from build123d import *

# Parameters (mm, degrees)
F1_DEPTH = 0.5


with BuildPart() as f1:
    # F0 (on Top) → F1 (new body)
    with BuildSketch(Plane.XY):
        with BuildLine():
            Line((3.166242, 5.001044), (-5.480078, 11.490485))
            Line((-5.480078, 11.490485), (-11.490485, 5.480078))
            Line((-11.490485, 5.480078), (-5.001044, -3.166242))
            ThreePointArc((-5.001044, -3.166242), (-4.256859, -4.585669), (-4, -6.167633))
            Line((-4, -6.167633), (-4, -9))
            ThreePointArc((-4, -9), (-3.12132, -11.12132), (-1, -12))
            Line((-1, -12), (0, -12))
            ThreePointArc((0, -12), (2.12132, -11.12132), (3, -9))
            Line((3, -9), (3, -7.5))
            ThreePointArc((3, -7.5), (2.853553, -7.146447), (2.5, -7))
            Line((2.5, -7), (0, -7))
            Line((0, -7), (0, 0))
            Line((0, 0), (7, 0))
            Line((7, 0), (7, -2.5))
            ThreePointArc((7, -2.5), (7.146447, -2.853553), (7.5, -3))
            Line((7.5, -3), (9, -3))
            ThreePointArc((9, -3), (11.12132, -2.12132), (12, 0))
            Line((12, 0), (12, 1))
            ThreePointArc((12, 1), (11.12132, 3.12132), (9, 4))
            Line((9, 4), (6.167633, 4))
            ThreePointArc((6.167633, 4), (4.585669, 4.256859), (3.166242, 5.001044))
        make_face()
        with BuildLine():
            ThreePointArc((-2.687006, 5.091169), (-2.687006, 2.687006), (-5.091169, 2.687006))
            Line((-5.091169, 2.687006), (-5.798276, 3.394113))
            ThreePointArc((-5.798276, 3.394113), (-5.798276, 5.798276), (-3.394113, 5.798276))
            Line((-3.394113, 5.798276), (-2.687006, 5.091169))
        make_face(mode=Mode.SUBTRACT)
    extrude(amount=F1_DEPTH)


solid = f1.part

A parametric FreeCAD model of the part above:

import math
import FreeCAD as App
import Part
import Sketcher
Q = App.Units.Quantity

doc = App.newDocument("Part")
params = doc.addObject("Spreadsheet::Sheet", "Params")
for row, (alias, value) in enumerate([
    ("sketch1_radius", "3.000001 mm"),
    ("sketch1_radius2", "0.500001 mm"),
    ("sketch1_radius3", "1.7 mm"),
    ("sketch1_width", "1 mm"),
    ("sketch1_width2", "7 mm"),
    ("pad1_length", "0.5 mm"),
], start=1):
    params.set(f"A{row}", alias)
    params.set(f"B{row}", "=" + value)
    params.setAlias(f"B{row}", alias)

body = doc.addObject("PartDesign::Body", "Body")

sketch1 = body.newObject("Sketcher::SketchObject", "Sketch")
sketch1.AttachmentSupport = (doc.getObject("XY_Plane"), [""])
sketch1.MapMode = "FlatFace"
sketch1.addGeometry([
    Part.LineSegment(App.Vector(3.2, 5, 0), App.Vector(-5.5, 11.5, 0)),
    Part.LineSegment(App.Vector(-5.5, 11.5, 0), App.Vector(-11.5, 5.5, 0)),
    Part.LineSegment(App.Vector(-11.5, 5.5, 0), App.Vector(-5, -3.2, 0)),
    Part.ArcOfCircle(Part.Circle(App.Vector(-9, -6.2, 0), App.Vector(0, 0, 1), 5), math.radians(0), math.radians(37)),
    Part.LineSegment(App.Vector(-4, -6.2, 0), App.Vector(-4, -9, 0)),
    Part.ArcOfCircle(Part.Circle(App.Vector(-1, -9, 0), App.Vector(0, 0, 1), 3), math.radians(-180), math.radians(-90)),
    Part.LineSegment(App.Vector(-1, -12, 0), App.Vector(0, -12, 0)),
    Part.ArcOfCircle(Part.Circle(App.Vector(0, -9, 0), App.Vector(0, 0, 1), 3), math.radians(-90), math.radians(0)),
    Part.LineSegment(App.Vector(3, -9, 0), App.Vector(3, -7.5, 0)),
    Part.ArcOfCircle(Part.Circle(App.Vector(2.5, -7.5, 0), App.Vector(0, 0, 1), 0.5), math.radians(0), math.radians(90)),
    Part.LineSegment(App.Vector(2.5, -7, 0), App.Vector(0, -7, 0)),
    Part.LineSegment(App.Vector(0, -7, 0), App.Vector(0, 0, 0)),
    Part.LineSegment(App.Vector(0, 0, 0), App.Vector(7, 0, 0)),
    Part.LineSegment(App.Vector(7, 0, 0), App.Vector(7, -2.5, 0)),
    Part.ArcOfCircle(Part.Circle(App.Vector(7.5, -2.5, 0), App.Vector(0, 0, 1), 0.5), math.radians(-180), math.radians(-90)),
    Part.LineSegment(App.Vector(7.5, -3, 0), App.Vector(9, -3, 0)),
    Part.ArcOfCircle(Part.Circle(App.Vector(9, 0, 0), App.Vector(0, 0, 1), 3), math.radians(-90), math.radians(0)),
    Part.LineSegment(App.Vector(12, 0, 0), App.Vector(12, 1, 0)),
    Part.ArcOfCircle(Part.Circle(App.Vector(9, 1, 0), App.Vector(0, 0, 1), 3), math.radians(0), math.radians(90)),
    Part.LineSegment(App.Vector(9, 4, 0), App.Vector(6.2, 4, 0)),
    Part.ArcOfCircle(Part.Circle(App.Vector(6.2, 9, 0), App.Vector(0, 0, 1), 5), math.radians(-127), math.radians(-90)),
    Part.LineSegment(App.Vector(-3.4, 5.8, 0), App.Vector(-2.7, 5.1, 0)),
    Part.ArcOfCircle(Part.Circle(App.Vector(-3.9, 3.9, 0), App.Vector(0, 0, 1), 1.7), math.radians(-135), math.radians(45)),
    Part.LineSegment(App.Vector(-5.1, 2.7, 0), App.Vector(-5.8, 3.4, 0)),
    Part.ArcOfCircle(Part.Circle(App.Vector(-4.6, 4.6, 0), App.Vector(0, 0, 1), 1.7), math.radians(45), math.radians(225)),
], False)
sketch1.addConstraint([
    Sketcher.Constraint("Coincident", 0, 2, 1, 1),
    Sketcher.Constraint("Coincident", 1, 2, 2, 1),
    Sketcher.Constraint("Tangent", 2, 2, 3, 2),
    Sketcher.Constraint("Tangent", 3, 1, 4, 1),
    Sketcher.Constraint("Tangent", 4, 2, 5, 1),
    Sketcher.Constraint("Tangent", 5, 2, 6, 1),
    Sketcher.Constraint("Tangent", 6, 2, 7, 1),
    Sketcher.Constraint("Tangent", 7, 2, 8, 1),
    Sketcher.Constraint("Coincident", 8, 2, 9, 1),
    Sketcher.Constraint("Coincident", 9, 2, 10, 1),
    Sketcher.Constraint("Coincident", 10, 2, 11, 1),
    Sketcher.Constraint("Coincident", 11, 2, 12, 1),
    Sketcher.Constraint("Coincident", 12, 2, 13, 1),
    Sketcher.Constraint("Coincident", 13, 2, 14, 1),
    Sketcher.Constraint("Coincident", 14, 2, 15, 1),
    Sketcher.Constraint("Tangent", 15, 2, 16, 1),
    Sketcher.Constraint("Tangent", 16, 2, 17, 1),
    Sketcher.Constraint("Tangent", 17, 2, 18, 1),
    Sketcher.Constraint("Tangent", 18, 2, 19, 1),
    Sketcher.Constraint("Tangent", 19, 2, 20, 2),
    Sketcher.Constraint("Tangent", 20, 1, 0, 1),
    Sketcher.Constraint("Tangent", 21, 2, 22, 2),
    Sketcher.Constraint("Tangent", 22, 1, 23, 1),
    Sketcher.Constraint("Tangent", 23, 2, 24, 2),
    Sketcher.Constraint("Tangent", 24, 1, 21, 1),
    Sketcher.Constraint("Vertical", 4),
    Sketcher.Constraint("Horizontal", 6),
    Sketcher.Constraint("Vertical", 8),
    Sketcher.Constraint("Horizontal", 10),
    Sketcher.Constraint("Vertical", 11),
    Sketcher.Constraint("Horizontal", 12),
    Sketcher.Constraint("Vertical", 13),
    Sketcher.Constraint("Horizontal", 15),
    Sketcher.Constraint("Vertical", 17),
    Sketcher.Constraint("Horizontal", 19),
    Sketcher.Constraint("Coincident", 11, 2, -1, 1),
    Sketcher.Constraint("Equal", 5, 7),
    Sketcher.Constraint("Equal", 9, 14),
    Sketcher.Constraint("Equal", 7, 16),
    Sketcher.Constraint("Equal", 16, 18),
    Sketcher.Constraint("Equal", 3, 20),
    Sketcher.Constraint("Equal", 22, 24),
    Sketcher.Constraint("PointOnObject", 7, 3, -2),
    Sketcher.Constraint("PointOnObject", 16, 3, -1),
    Sketcher.Constraint("Perpendicular", 1, 21),
    Sketcher.Constraint("Horizontal", 9, 3, 8, 2),
    Sketcher.Constraint("Horizontal", 14, 3, 13, 2),
    Sketcher.Constraint("Equal", 19, 4),
    Sketcher.Constraint("Equal", 15, 8),
    Sketcher.Constraint("Equal", 12, 11),
    Sketcher.Constraint("Equal", 10, 13),
    Sketcher.Constraint("Equal", 6, 17),
    Sketcher.Constraint("Equal", 0, 2),
    Sketcher.Constraint("Radius", 5, 3.000001),
    Sketcher.Constraint("Radius", 9, 0.500001),
    Sketcher.Constraint("Radius", 22, 1.7),
    Sketcher.Constraint("DistanceX", 6, 1, 6, 2, 1.0),
    Sketcher.Constraint("DistanceX", 12, 1, 12, 2, 7.0),
    Sketcher.Constraint("Angle", 1, Q("-135 deg")),
    Sketcher.Constraint("Distance", 21, 1.0),
    Sketcher.Constraint("DistanceX", 15, 1, 15, 2, 1.5),
    Sketcher.Constraint("DistanceX", -1, 1, 16, 3, 8.999999),
    Sketcher.Constraint("Distance", 1, 8.499999),
    Sketcher.Constraint("DistanceX", 3, 3, 9, 3, 11.500002),
    Sketcher.Constraint("Distance", 0, 10.810721),
    Sketcher.Constraint("DistanceX", 19, 2, 19, 1, 2.832367),
    Sketcher.Constraint("DistanceY", -1, 1, 21, 2, 5.091169),
    Sketcher.Constraint("DistanceX", 22, 1, -1, 1, 5.091169),
])
sketch1.setExpression("Constraints[53]", "Params.sketch1_radius")
sketch1.setExpression("Constraints[54]", "Params.sketch1_radius2")
sketch1.setExpression("Constraints[55]", "Params.sketch1_radius3")
sketch1.setExpression("Constraints[56]", "Params.sketch1_width")
sketch1.setExpression("Constraints[57]", "Params.sketch1_width2")
pad1 = body.newObject("PartDesign::Pad", "Pad")
pad1.Profile = sketch1
pad1.setExpression("Length", "Params.pad1_length")

doc.recompute()
